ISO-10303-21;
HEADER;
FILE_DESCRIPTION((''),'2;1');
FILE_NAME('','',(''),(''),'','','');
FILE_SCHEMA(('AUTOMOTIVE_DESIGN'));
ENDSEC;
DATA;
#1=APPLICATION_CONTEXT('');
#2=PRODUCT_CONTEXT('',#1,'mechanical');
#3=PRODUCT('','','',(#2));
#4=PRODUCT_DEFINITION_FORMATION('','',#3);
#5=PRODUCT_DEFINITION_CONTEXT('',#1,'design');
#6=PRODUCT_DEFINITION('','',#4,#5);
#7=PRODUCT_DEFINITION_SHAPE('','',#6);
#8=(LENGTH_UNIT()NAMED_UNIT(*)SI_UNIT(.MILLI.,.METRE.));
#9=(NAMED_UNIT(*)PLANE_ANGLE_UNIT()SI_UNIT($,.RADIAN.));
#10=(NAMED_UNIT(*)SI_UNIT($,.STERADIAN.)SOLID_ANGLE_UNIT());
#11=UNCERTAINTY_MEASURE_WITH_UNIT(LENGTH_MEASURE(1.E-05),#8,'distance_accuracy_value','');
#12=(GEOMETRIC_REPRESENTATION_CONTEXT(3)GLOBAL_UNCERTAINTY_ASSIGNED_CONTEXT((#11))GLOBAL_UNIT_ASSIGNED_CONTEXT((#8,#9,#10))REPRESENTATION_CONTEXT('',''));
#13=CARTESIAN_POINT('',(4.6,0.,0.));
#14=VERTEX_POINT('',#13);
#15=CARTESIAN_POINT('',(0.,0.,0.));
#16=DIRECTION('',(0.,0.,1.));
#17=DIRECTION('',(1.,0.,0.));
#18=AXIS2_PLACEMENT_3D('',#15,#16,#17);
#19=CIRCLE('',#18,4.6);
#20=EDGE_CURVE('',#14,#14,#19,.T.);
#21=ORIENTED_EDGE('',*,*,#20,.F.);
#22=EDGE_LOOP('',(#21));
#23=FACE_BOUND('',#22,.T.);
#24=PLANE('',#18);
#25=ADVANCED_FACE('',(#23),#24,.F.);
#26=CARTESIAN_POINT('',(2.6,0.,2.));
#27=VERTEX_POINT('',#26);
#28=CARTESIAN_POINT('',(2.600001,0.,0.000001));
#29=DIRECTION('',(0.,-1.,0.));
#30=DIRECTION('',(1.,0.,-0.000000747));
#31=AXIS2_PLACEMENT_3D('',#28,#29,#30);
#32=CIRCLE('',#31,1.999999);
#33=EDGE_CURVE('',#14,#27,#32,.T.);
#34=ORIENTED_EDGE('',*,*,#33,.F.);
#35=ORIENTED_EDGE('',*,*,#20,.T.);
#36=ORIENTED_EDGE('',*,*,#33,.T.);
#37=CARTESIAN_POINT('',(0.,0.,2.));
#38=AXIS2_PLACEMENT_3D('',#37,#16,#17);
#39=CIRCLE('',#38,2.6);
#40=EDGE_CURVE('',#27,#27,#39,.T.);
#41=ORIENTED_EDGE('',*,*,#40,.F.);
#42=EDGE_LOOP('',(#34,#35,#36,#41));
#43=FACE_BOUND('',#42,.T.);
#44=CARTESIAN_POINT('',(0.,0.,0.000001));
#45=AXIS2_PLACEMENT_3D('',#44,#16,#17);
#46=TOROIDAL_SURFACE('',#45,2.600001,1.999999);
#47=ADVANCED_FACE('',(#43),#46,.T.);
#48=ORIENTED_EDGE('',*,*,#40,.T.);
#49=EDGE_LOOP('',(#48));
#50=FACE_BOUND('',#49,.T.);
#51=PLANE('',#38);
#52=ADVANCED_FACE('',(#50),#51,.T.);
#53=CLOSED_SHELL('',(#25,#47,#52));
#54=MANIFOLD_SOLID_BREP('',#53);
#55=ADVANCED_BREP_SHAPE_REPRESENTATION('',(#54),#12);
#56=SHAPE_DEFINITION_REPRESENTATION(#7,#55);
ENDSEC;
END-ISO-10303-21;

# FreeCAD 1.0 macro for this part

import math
import FreeCAD as App
import Part
import Sketcher

V = App.Vector
Q = App.Units.Quantity

doc = App.newDocument("Part")
body = doc.addObject("PartDesign::Body", "Body")

# Sketch on XZ plane
sketch1 = doc.addObject("Sketcher::SketchObject", "Sketch")
body.addObject(sketch1)
sketch1.AttachmentSupport = (doc.XZ_Plane, [""])
sketch1.MapMode = "FlatFace"
sketch1.addGeometry([
    Part.LineSegment(V(0, 0, 0), V(4.6, 0, 0)),
    Part.ArcOfCircle(Part.Circle(V(2.6, 0, 0), V(0, 0, 1), 2), math.radians(0), math.radians(90)),
    Part.LineSegment(V(2.6, 2, 0), V(0, 2, 0)),
    Part.LineSegment(V(0, 2, 0), V(0, 0, 0)),
], False)
sketch1.addConstraint([
    Sketcher.Constraint("Coincident", 0, 2, 1, 1),
    Sketcher.Constraint("Tangent", 1, 2, 2, 1),
    Sketcher.Constraint("Coincident", 2, 2, 3, 1),
    Sketcher.Constraint("Coincident", 3, 2, 0, 1),
    Sketcher.Constraint("Horizontal", 0),
    Sketcher.Constraint("Horizontal", 2),
    Sketcher.Constraint("Vertical", 3),
    Sketcher.Constraint("Coincident", 3, 2, -1, 1),
    Sketcher.Constraint("PointOnObject", 1, 3, -1),
    Sketcher.Constraint("Radius", 1, Q("1.999999 mm")),
    Sketcher.Constraint("DistanceX", 0, 1, 0, 2, Q("4.6 mm")),
])
revolution = doc.addObject("PartDesign::Revolution", "Revolution")
body.addObject(revolution)
revolution.Profile = sketch1
revolution.ReferenceAxis = (sketch1, ["V_Axis"])
revolution.Angle = 360

doc.recompute()
